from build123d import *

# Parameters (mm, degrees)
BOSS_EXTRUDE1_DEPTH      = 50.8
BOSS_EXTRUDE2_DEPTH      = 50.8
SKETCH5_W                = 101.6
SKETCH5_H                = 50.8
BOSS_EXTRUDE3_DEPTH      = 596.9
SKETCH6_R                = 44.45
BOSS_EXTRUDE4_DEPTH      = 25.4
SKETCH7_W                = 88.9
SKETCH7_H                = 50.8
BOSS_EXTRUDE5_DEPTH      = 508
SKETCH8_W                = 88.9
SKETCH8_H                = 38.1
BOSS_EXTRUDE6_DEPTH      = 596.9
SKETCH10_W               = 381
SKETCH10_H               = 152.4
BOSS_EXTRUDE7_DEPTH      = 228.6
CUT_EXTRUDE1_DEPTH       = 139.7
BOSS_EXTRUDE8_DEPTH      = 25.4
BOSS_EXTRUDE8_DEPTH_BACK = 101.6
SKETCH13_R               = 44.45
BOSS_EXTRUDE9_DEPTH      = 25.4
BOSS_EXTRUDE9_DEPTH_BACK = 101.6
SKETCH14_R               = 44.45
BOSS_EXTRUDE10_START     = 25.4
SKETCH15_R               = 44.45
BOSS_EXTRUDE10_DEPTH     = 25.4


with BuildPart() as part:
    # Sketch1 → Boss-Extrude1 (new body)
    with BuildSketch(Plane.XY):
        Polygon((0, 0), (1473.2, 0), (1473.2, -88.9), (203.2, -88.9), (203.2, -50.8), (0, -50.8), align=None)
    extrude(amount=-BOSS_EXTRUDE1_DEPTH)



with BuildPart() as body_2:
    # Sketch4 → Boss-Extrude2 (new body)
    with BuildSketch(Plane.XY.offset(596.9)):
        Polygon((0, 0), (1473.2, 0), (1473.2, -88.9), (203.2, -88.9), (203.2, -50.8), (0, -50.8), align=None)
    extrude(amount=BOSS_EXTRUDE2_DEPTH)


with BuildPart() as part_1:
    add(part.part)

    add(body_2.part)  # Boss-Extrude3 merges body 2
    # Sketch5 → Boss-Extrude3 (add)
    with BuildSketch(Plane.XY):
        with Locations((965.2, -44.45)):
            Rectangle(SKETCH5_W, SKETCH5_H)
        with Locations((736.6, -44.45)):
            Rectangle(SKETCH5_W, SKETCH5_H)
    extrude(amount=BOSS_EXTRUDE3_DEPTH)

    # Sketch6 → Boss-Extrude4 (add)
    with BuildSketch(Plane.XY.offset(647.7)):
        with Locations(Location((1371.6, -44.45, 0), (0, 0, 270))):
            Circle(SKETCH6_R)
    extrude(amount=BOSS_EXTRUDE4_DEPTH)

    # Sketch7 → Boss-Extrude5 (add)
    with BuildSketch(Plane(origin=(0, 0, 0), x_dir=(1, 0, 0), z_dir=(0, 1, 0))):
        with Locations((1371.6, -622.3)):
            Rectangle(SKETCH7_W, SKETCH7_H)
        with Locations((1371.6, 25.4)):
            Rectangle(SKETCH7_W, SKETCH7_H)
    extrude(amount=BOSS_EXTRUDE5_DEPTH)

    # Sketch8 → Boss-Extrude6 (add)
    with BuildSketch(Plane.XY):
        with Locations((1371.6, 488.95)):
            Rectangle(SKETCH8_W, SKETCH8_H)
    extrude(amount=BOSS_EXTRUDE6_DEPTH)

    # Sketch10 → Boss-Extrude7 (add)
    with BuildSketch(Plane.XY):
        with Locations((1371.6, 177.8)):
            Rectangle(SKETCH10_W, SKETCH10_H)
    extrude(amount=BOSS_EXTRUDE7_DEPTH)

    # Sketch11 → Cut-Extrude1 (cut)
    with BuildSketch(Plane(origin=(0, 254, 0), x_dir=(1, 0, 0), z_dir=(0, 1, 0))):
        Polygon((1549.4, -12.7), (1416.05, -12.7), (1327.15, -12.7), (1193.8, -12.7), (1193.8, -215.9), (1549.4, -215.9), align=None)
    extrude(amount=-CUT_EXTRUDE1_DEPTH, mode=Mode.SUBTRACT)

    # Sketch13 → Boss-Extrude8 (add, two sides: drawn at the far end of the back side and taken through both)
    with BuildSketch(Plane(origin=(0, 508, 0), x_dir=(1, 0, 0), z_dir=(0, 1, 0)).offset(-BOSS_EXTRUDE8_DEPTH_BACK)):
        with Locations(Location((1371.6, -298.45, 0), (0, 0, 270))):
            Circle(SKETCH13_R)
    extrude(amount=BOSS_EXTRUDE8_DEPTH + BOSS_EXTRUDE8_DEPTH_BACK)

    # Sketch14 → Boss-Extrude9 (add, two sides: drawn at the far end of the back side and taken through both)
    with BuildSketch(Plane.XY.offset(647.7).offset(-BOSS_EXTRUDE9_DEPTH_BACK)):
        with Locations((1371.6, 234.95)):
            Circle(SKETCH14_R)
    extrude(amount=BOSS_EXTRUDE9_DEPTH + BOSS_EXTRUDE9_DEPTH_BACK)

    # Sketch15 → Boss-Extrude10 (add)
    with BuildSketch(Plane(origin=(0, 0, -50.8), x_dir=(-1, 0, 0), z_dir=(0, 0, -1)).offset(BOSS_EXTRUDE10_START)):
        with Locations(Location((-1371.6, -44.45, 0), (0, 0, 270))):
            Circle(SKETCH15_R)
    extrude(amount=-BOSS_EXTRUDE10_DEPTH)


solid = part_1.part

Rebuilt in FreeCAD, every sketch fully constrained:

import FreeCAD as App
import Part
import Sketcher
from FreeCAD import Vector
Q = App.Units.Quantity

doc = App.newDocument("Part")
body = doc.addObject("PartDesign::Body", "Body")

sketch1 = body.newObject("Sketcher::SketchObject", "Sketch")
sketch1.AttachmentSupport = (doc.getObject("XY_Plane"), [""])
sketch1.MapMode = "FlatFace"
sketch1.addGeometry(Part.LineSegment(Vector(1473, 0, 0), Vector(0, 0, 0)), False)
sketch1.addGeometry(Part.LineSegment(Vector(0, 0, 0), Vector(0, -51, 0)), False)
sketch1.addGeometry(Part.LineSegment(Vector(0, -51, 0), Vector(203, -51, 0)), False)
sketch1.addGeometry(Part.LineSegment(Vector(203, -51, 0), Vector(203, -89, 0)), False)
sketch1.addGeometry(Part.LineSegment(Vector(203, -89, 0), Vector(1473, -89, 0)), False)
sketch1.addGeometry(Part.LineSegment(Vector(1473, -89, 0), Vector(1473, 0, 0)), False)
sketch1.addConstraint(Sketcher.Constraint("Coincident", 0, 2, 1, 1))
sketch1.addConstraint(Sketcher.Constraint("Coincident", 1, 2, 2, 1))
sketch1.addConstraint(Sketcher.Constraint("Coincident", 2, 2, 3, 1))
sketch1.addConstraint(Sketcher.Constraint("Coincident", 3, 2, 4, 1))
sketch1.addConstraint(Sketcher.Constraint("Coincident", 4, 2, 5, 1))
sketch1.addConstraint(Sketcher.Constraint("Coincident", 5, 2, 0, 1))
sketch1.addConstraint(Sketcher.Constraint("Horizontal", 0))
sketch1.addConstraint(Sketcher.Constraint("Vertical", 1))
sketch1.addConstraint(Sketcher.Constraint("Horizontal", 2))
sketch1.addConstraint(Sketcher.Constraint("Vertical", 3))
sketch1.addConstraint(Sketcher.Constraint("Horizontal", 4))
sketch1.addConstraint(Sketcher.Constraint("Vertical", 5))
sketch1.addConstraint(Sketcher.Constraint("Coincident", 0, 2, -1, 1))
sketch1.addConstraint(Sketcher.Constraint("DistanceX", 0, 2, 0, 1, Q("58 in")))
sketch1.addConstraint(Sketcher.Constraint("DistanceX", 2, 1, 2, 2, Q("8 in")))
sketch1.addConstraint(Sketcher.Constraint("DistanceY", 1, 2, 1, 1, Q("2 in")))
sketch1.addConstraint(Sketcher.Constraint("DistanceY", 3, 2, 3, 1, Q("1.5 in")))
pad1 = body.newObject("PartDesign::Pad", "Pad")
pad1.Profile = sketch1
pad1.Length = Q("2 in")
pad1.Reversed = True
body2 = doc.addObject("PartDesign::Body", "Body001")

sketch2 = body2.newObject("Sketcher::SketchObject", "Sketch001")
sketch2.AttachmentSupport = (doc.getObject("XY_Plane001"), [""])
sketch2.MapMode = "FlatFace"
sketch2.AttachmentOffset = App.Placement(Vector(0, 0, 23.5 * 25.4), App.Rotation())
sketch2.addGeometry(Part.LineSegment(Vector(1473, 0, 0), Vector(0, 0, 0)), False)
sketch2.addGeometry(Part.LineSegment(Vector(0, 0, 0), Vector(0, -51, 0)), False)
sketch2.addGeometry(Part.LineSegment(Vector(0, -51, 0), Vector(203, -51, 0)), False)
sketch2.addGeometry(Part.LineSegment(Vector(203, -51, 0), Vector(203, -89, 0)), False)
sketch2.addGeometry(Part.LineSegment(Vector(203, -89, 0), Vector(1473, -89, 0)), False)
sketch2.addGeometry(Part.LineSegment(Vector(1473, -89, 0), Vector(1473, 0, 0)), False)
sketch2.addConstraint(Sketcher.Constraint("Coincident", 0, 2, 1, 1))
sketch2.addConstraint(Sketcher.Constraint("Coincident", 1, 2, 2, 1))
sketch2.addConstraint(Sketcher.Constraint("Coincident", 2, 2, 3, 1))
sketch2.addConstraint(Sketcher.Constraint("Coincident", 3, 2, 4, 1))
sketch2.addConstraint(Sketcher.Constraint("Coincident", 4, 2, 5, 1))
sketch2.addConstraint(Sketcher.Constraint("Coincident", 5, 2, 0, 1))
sketch2.addConstraint(Sketcher.Constraint("Horizontal", 0))
sketch2.addConstraint(Sketcher.Constraint("Vertical", 1))
sketch2.addConstraint(Sketcher.Constraint("Horizontal", 2))
sketch2.addConstraint(Sketcher.Constraint("Vertical", 3))
sketch2.addConstraint(Sketcher.Constraint("Horizontal", 4))
sketch2.addConstraint(Sketcher.Constraint("Vertical", 5))
sketch2.addConstraint(Sketcher.Constraint("Coincident", 0, 2, -1, 1))
sketch2.addConstraint(Sketcher.Constraint("DistanceX", 0, 2, 0, 1, Q("58 in")))
sketch2.addConstraint(Sketcher.Constraint("DistanceX", 2, 1, 2, 2, Q("8 in")))
sketch2.addConstraint(Sketcher.Constraint("DistanceY", 1, 2, 1, 1, Q("2 in")))
sketch2.addConstraint(Sketcher.Constraint("DistanceY", 3, 2, 3, 1, Q("1.5 in")))
pad2 = body2.newObject("PartDesign::Pad", "Pad001")
pad2.Profile = sketch2
pad2.Length = Q("2 in")
body.AllowCompound = True
doc.recompute()

boolean = body.newObject("PartDesign::Boolean", "Boolean")
boolean.Type = "Fuse"
boolean.addObjects([body2])

sketch3 = body.newObject("Sketcher::SketchObject", "Sketch002")
sketch3.AttachmentSupport = (doc.getObject("XY_Plane"), [""])
sketch3.MapMode = "FlatFace"
sketch3.addGeometry(Part.LineSegment(Vector(914, -19, 0), Vector(914, -70, 0)), False)
sketch3.addGeometry(Part.LineSegment(Vector(914, -70, 0), Vector(1016, -70, 0)), False)
sketch3.addGeometry(Part.LineSegment(Vector(1016, -70, 0), Vector(1016, -19, 0)), False)
sketch3.addGeometry(Part.LineSegment(Vector(1016, -19, 0), Vector(914, -19, 0)), False)
sketch3.addGeometry(Part.LineSegment(Vector(686, -19, 0), Vector(686, -70, 0)), False)
sketch3.addGeometry(Part.LineSegment(Vector(686, -70, 0), Vector(787, -70, 0)), False)
sketch3.addGeometry(Part.LineSegment(Vector(787, -70, 0), Vector(787, -19, 0)), False)
sketch3.addGeometry(Part.LineSegment(Vector(787, -19, 0), Vector(686, -19, 0)), False)
sketch3.addConstraint(Sketcher.Constraint("Coincident", 0, 2, 1, 1))
sketch3.addConstraint(Sketcher.Constraint("Coincident", 1, 2, 2, 1))
sketch3.addConstraint(Sketcher.Constraint("Coincident", 2, 2, 3, 1))
sketch3.addConstraint(Sketcher.Constraint("Coincident", 3, 2, 0, 1))
sketch3.addConstraint(Sketcher.Constraint("Coincident", 4, 2, 5, 1))
sketch3.addConstraint(Sketcher.Constraint("Coincident", 5, 2, 6, 1))
sketch3.addConstraint(Sketcher.Constraint("Coincident", 6, 2, 7, 1))
sketch3.addConstraint(Sketcher.Constraint("Coincident", 7, 2, 4, 1))
sketch3.addConstraint(Sketcher.Constraint("Vertical", 0))
sketch3.addConstraint(Sketcher.Constraint("Horizontal", 1))
sketch3.addConstraint(Sketcher.Constraint("Vertical", 2))
sketch3.addConstraint(Sketcher.Constraint("Horizontal", 3))
sketch3.addConstraint(Sketcher.Constraint("Vertical", 4))
sketch3.addConstraint(Sketcher.Constraint("Horizontal", 5))
sketch3.addConstraint(Sketcher.Constraint("Vertical", 6))
sketch3.addConstraint(Sketcher.Constraint("Horizontal", 7))
sketch3.addConstraint(Sketcher.Constraint("Horizontal", 1, 2, 4, 2))
sketch3.addConstraint(Sketcher.Constraint("Horizontal", 3, 2, 6, 2))
sketch3.addConstraint(Sketcher.Constraint("Equal", 3, 5))
sketch3.addConstraint(Sketcher.Constraint("DistanceX", 1, 1, 1, 2, Q("4 in")))
sketch3.addConstraint(Sketcher.Constraint("DistanceY", 0, 2, 0, 1, Q("2 in")))
sketch3.addConstraint(Sketcher.Constraint("DistanceX", -1, 1, 0, 2, Q("36 in")))
sketch3.addConstraint(Sketcher.Constraint("DistanceX", -1, 1, 4, 2, Q("27 in")))
sketch3.addConstraint(Sketcher.Constraint("DistanceY", 0, 2, -1, 1, Q("2.75 in")))
pad3 = body.newObject("PartDesign::Pad", "Pad002")
pad3.Profile = sketch3
pad3.Length = Q("23.5 in")

sketch4 = body.newObject("Sketcher::SketchObject", "Sketch003")
sketch4.AttachmentSupport = (doc.getObject("XY_Plane"), [""])
sketch4.MapMode = "FlatFace"
sketch4.AttachmentOffset = App.Placement(Vector(0, 0, 25.5 * 25.4), App.Rotation())
sketch4.addGeometry(Part.Circle(Vector(1372, -44, 0), Vector(0, 0, 1), 44), False)
sketch4.addConstraint(Sketcher.Constraint("Diameter", 0, Q("3.5 in")))
sketch4.addConstraint(Sketcher.Constraint("DistanceX", -1, 1, 0, 3, Q("54 in")))
sketch4.addConstraint(Sketcher.Constraint("DistanceY", 0, 3, -1, 1, Q("1.75 in")))
pad4 = body.newObject("PartDesign::Pad", "Pad003")
pad4.Profile = sketch4
pad4.Length = Q("1 in")

sketch5 = body.newObject("Sketcher::SketchObject", "Sketch004")
sketch5.AttachmentSupport = (doc.getObject("XZ_Plane"), [""])
sketch5.MapMode = "FlatFace"
sketch5.addGeometry(Part.LineSegment(Vector(1327, 597, 0), Vector(1327, 648, 0)), False)
sketch5.addGeometry(Part.LineSegment(Vector(1327, 648, 0), Vector(1416, 648, 0)), False)
sketch5.addGeometry(Part.LineSegment(Vector(1416, 648, 0), Vector(1416, 597, 0)), False)
sketch5.addGeometry(Part.LineSegment(Vector(1416, 597, 0), Vector(1327, 597, 0)), False)
sketch5.addGeometry(Part.LineSegment(Vector(1327, -51, 0), Vector(1327, 0, 0)), False)
sketch5.addGeometry(Part.LineSegment(Vector(1327, 0, 0), Vector(1416, 0, 0)), False)
sketch5.addGeometry(Part.LineSegment(Vector(1416, 0, 0), Vector(1416, -51, 0)), False)
sketch5.addGeometry(Part.LineSegment(Vector(1416, -51, 0), Vector(1327, -51, 0)), False)
sketch5.addConstraint(Sketcher.Constraint("Coincident", 0, 2, 1, 1))
sketch5.addConstraint(Sketcher.Constraint("Coincident", 1, 2, 2, 1))
sketch5.addConstraint(Sketcher.Constraint("Coincident", 2, 2, 3, 1))
sketch5.addConstraint(Sketcher.Constraint("Coincident", 3, 2, 0, 1))
sketch5.addConstraint(Sketcher.Constraint("Coincident", 4, 2, 5, 1))
sketch5.addConstraint(Sketcher.Constraint("Coincident", 5, 2, 6, 1))
sketch5.addConstraint(Sketcher.Constraint("Coincident", 6, 2, 7, 1))
sketch5.addConstraint(Sketcher.Constraint("Coincident", 7, 2, 4, 1))
sketch5.addConstraint(Sketcher.Constraint("Vertical", 0))
sketch5.addConstraint(Sketcher.Constraint("Horizontal", 1))
sketch5.addConstraint(Sketcher.Constraint("Vertical", 2))
sketch5.addConstraint(Sketcher.Constraint("Horizontal", 3))
sketch5.addConstraint(Sketcher.Constraint("Vertical", 4))
sketch5.addConstraint(Sketcher.Constraint("Horizontal", 5))
sketch5.addConstraint(Sketcher.Constraint("Vertical", 6))
sketch5.addConstraint(Sketcher.Constraint("Horizontal", 7))
sketch5.addConstraint(Sketcher.Constraint("PointOnObject", 4, 2, -1))
sketch5.addConstraint(Sketcher.Constraint("Vertical", 3, 2, 4, 2))
sketch5.addConstraint(Sketcher.Constraint("Vertical", 2, 2, 5, 2))
sketch5.addConstraint(Sketcher.Constraint("Equal", 2, 4))
sketch5.addConstraint(Sketcher.Constraint("DistanceY", 0, 1, 0, 2, Q("2 in")))
sketch5.addConstraint(Sketcher.Constraint("DistanceX", 1, 1, 1, 2, Q("3.5 in")))
sketch5.addConstraint(Sketcher.Constraint("DistanceY", -1, 1, 0, 2, Q("25.5 in")))
sketch5.addConstraint(Sketcher.Constraint("DistanceX", -1, 1, 0, 2, Q("52.25 in")))
pad5 = body.newObject("PartDesign::Pad", "Pad004")
pad5.Profile = sketch5
pad5.Length = Q("20 in")
pad5.Reversed = True

sketch6 = body.newObject("Sketcher::SketchObject", "Sketch005")
sketch6.AttachmentSupport = (doc.getObject("XY_Plane"), [""])
sketch6.MapMode = "FlatFace"
sketch6.addGeometry(Part.LineSegment(Vector(1327, 508, 0), Vector(1327, 470, 0)), False)
sketch6.addGeometry(Part.LineSegment(Vector(1327, 470, 0), Vector(1416, 470, 0)), False)
sketch6.addGeometry(Part.LineSegment(Vector(1416, 470, 0), Vector(1416, 508, 0)), False)
sketch6.addGeometry(Part.LineSegment(Vector(1416, 508, 0), Vector(1327, 508, 0)), False)
sketch6.addConstraint(Sketcher.Constraint("Coincident", 0, 2, 1, 1))
sketch6.addConstraint(Sketcher.Constraint("Coincident", 1, 2, 2, 1))
sketch6.addConstraint(Sketcher.Constraint("Coincident", 2, 2, 3, 1))
sketch6.addConstraint(Sketcher.Constraint("Coincident", 3, 2, 0, 1))
sketch6.addConstraint(Sketcher.Constraint("Vertical", 0))
sketch6.addConstraint(Sketcher.Constraint("Horizontal", 1))
sketch6.addConstraint(Sketcher.Constraint("Vertical", 2))
sketch6.addConstraint(Sketcher.Constraint("Horizontal", 3))
sketch6.addConstraint(Sketcher.Constraint("DistanceX", 1, 1, 1, 2, Q("3.5 in")))
sketch6.addConstraint(Sketcher.Constraint("DistanceY", 0, 2, 0, 1, Q("1.5 in")))
sketch6.addConstraint(Sketcher.Constraint("DistanceY", -1, 1, 2, 2, Q("20 in")))
sketch6.addConstraint(Sketcher.Constraint("DistanceX", -1, 1, 0, 2, Q("52.25 in")))
pad6 = body.newObject("PartDesign::Pad", "Pad005")
pad6.Profile = sketch6
pad6.Length = Q("23.5 in")

sketch7 = body.newObject("Sketcher::SketchObject", "Sketch006")
sketch7.AttachmentSupport = (doc.getObject("XY_Plane"), [""])
sketch7.MapMode = "FlatFace"
sketch7.addGeometry(Part.LineSegment(Vector(1181, 254, 0), Vector(1181, 102, 0)), False)
sketch7.addGeometry(Part.LineSegment(Vector(1181, 102, 0), Vector(1562, 102, 0)), False)
sketch7.addGeometry(Part.LineSegment(Vector(1562, 102, 0), Vector(1562, 254, 0)), False)
sketch7.addGeometry(Part.LineSegment(Vector(1562, 254, 0), Vector(1181, 254, 0)), False)
sketch7.addConstraint(Sketcher.Constraint("Coincident", 0, 2, 1, 1))
sketch7.addConstraint(Sketcher.Constraint("Coincident", 1, 2, 2, 1))
sketch7.addConstraint(Sketcher.Constraint("Coincident", 2, 2, 3, 1))
sketch7.addConstraint(Sketcher.Constraint("Coincident", 3, 2, 0, 1))
sketch7.addConstraint(Sketcher.Constraint("Vertical", 0))
sketch7.addConstraint(Sketcher.Constraint("Horizontal", 1))
sketch7.addConstraint(Sketcher.Constraint("Vertical", 2))
sketch7.addConstraint(Sketcher.Constraint("Horizontal", 3))
sketch7.addConstraint(Sketcher.Constraint("DistanceX", 1, 1, 1, 2, Q("15 in")))
sketch7.addConstraint(Sketcher.Constraint("DistanceY", 0, 2, 0, 1, Q("6 in")))
sketch7.addConstraint(Sketcher.Constraint("DistanceY", -1, 1, 0, 2, Q("4 in")))
sketch7.addConstraint(Sketcher.Constraint("DistanceX", -1, 1, 0, 2, Q("46.5 in")))
pad7 = body.newObject("PartDesign::Pad", "Pad006")
pad7.Profile = sketch7
pad7.Length = Q("9 in")

sketch8 = body.newObject("Sketcher::SketchObject", "Sketch007")
sketch8.AttachmentSupport = (doc.getObject("XZ_Plane"), [""])
sketch8.MapMode = "FlatFace"
sketch8.AttachmentOffset = App.Placement(Vector(0, 0, -10 * 25.4), App.Rotation())
sketch8.addGeometry(Part.LineSegment(Vector(1549, 13, 0), Vector(1194, 13, 0)), False)
sketch8.addGeometry(Part.LineSegment(Vector(1194, 13, 0), Vector(1194, 216, 0)), False)
sketch8.addGeometry(Part.LineSegment(Vector(1194, 216, 0), Vector(1549, 216, 0)), False)
sketch8.addGeometry(Part.LineSegment(Vector(1549, 216, 0), Vector(1549, 13, 0)), False)
sketch8.addConstraint(Sketcher.Constraint("Coincident", 0, 2, 1, 1))
sketch8.addConstraint(Sketcher.Constraint("Coincident", 1, 2, 2, 1))
sketch8.addConstraint(Sketcher.Constraint("Coincident", 2, 2, 3, 1))
sketch8.addConstraint(Sketcher.Constraint("Coincident", 3, 2, 0, 1))
sketch8.addConstraint(Sketcher.Constraint("Horizontal", 0))
sketch8.addConstraint(Sketcher.Constraint("Vertical", 1))
sketch8.addConstraint(Sketcher.Constraint("Horizontal", 2))
sketch8.addConstraint(Sketcher.Constraint("Vertical", 3))
sketch8.addConstraint(Sketcher.Constraint("DistanceX", 0, 2, 0, 1, Q("14 in")))
sketch8.addConstraint(Sketcher.Constraint("DistanceY", 1, 1, 1, 2, Q("8 in")))
sketch8.addConstraint(Sketcher.Constraint("DistanceX", -1, 1, 0, 2, Q("47 in")))
sketch8.addConstraint(Sketcher.Constraint("DistanceY", -1, 1, 0, 2, Q("0.5 in")))
pocket1 = body.newObject("PartDesign::Pocket", "Pocket")
pocket1.Profile = sketch8
pocket1.Length = Q("5.5 in")
pocket1.Reversed = True

sketch9 = body.newObject("Sketcher::SketchObject", "Sketch008")
sketch9.AttachmentSupport = (doc.getObject("XZ_Plane"), [""])
sketch9.MapMode = "FlatFace"
sketch9.AttachmentOffset = App.Placement(Vector(0, 0, -20 * 25.4), App.Rotation())
sketch9.addGeometry(Part.Circle(Vector(1372, 298, 0), Vector(0, 0, 1), 44), False)
sketch9.addConstraint(Sketcher.Constraint("Diameter", 0, Q("3.5 in")))
sketch9.addConstraint(Sketcher.Constraint("DistanceX", -1, 1, 0, 3, Q("54 in")))
sketch9.addConstraint(Sketcher.Constraint("DistanceY", -1, 1, 0, 3, Q("11.75 in")))
pad8 = body.newObject("PartDesign::Pad", "Pad007")
pad8.Profile = sketch9
pad8.Type = "TwoLengths"
pad8.Length = Q("1 in")
pad8.Length2 = Q("4 in")
pad8.Reversed = True

sketch10 = body.newObject("Sketcher::SketchObject", "Sketch009")
sketch10.AttachmentSupport = (doc.getObject("XY_Plane"), [""])
sketch10.MapMode = "FlatFace"
sketch10.AttachmentOffset = App.Placement(Vector(0, 0, 25.5 * 25.4), App.Rotation())
sketch10.addGeometry(Part.Circle(Vector(1372, 235, 0), Vector(0, 0, 1), 44), False)
sketch10.addConstraint(Sketcher.Constraint("Diameter", 0, Q("3.5 in")))
sketch10.addConstraint(Sketcher.Constraint("DistanceX", -1, 1, 0, 3, Q("54 in")))
sketch10.addConstraint(Sketcher.Constraint("DistanceY", -1, 1, 0, 3, Q("9.25 in")))
pad9 = body.newObject("PartDesign::Pad", "Pad008")
pad9.Profile = sketch10
pad9.Type = "TwoLengths"
pad9.Length = Q("1 in")
pad9.Length2 = Q("4 in")

sketch11 = body.newObject("Sketcher::SketchObject", "Sketch010")
sketch11.AttachmentSupport = (doc.getObject("XY_Plane"), [""])
sketch11.MapMode = "FlatFace"
sketch11.AttachmentOffset = App.Placement(Vector(0, 0, -3 * 25.4), App.Rotation())
sketch11.addGeometry(Part.Circle(Vector(1372, -44, 0), Vector(0, 0, 1), 44), False)
sketch11.addConstraint(Sketcher.Constraint("Diameter", 0, Q("3.5 in")))
sketch11.addConstraint(Sketcher.Constraint("DistanceX", -1, 1, 0, 3, Q("54 in")))
sketch11.addConstraint(Sketcher.Constraint("DistanceY", 0, 3, -1, 1, Q("1.75 in")))
pad10 = body.newObject("PartDesign::Pad", "Pad009")
pad10.Profile = sketch11
pad10.Length = Q("1 in")

doc.recompute()
